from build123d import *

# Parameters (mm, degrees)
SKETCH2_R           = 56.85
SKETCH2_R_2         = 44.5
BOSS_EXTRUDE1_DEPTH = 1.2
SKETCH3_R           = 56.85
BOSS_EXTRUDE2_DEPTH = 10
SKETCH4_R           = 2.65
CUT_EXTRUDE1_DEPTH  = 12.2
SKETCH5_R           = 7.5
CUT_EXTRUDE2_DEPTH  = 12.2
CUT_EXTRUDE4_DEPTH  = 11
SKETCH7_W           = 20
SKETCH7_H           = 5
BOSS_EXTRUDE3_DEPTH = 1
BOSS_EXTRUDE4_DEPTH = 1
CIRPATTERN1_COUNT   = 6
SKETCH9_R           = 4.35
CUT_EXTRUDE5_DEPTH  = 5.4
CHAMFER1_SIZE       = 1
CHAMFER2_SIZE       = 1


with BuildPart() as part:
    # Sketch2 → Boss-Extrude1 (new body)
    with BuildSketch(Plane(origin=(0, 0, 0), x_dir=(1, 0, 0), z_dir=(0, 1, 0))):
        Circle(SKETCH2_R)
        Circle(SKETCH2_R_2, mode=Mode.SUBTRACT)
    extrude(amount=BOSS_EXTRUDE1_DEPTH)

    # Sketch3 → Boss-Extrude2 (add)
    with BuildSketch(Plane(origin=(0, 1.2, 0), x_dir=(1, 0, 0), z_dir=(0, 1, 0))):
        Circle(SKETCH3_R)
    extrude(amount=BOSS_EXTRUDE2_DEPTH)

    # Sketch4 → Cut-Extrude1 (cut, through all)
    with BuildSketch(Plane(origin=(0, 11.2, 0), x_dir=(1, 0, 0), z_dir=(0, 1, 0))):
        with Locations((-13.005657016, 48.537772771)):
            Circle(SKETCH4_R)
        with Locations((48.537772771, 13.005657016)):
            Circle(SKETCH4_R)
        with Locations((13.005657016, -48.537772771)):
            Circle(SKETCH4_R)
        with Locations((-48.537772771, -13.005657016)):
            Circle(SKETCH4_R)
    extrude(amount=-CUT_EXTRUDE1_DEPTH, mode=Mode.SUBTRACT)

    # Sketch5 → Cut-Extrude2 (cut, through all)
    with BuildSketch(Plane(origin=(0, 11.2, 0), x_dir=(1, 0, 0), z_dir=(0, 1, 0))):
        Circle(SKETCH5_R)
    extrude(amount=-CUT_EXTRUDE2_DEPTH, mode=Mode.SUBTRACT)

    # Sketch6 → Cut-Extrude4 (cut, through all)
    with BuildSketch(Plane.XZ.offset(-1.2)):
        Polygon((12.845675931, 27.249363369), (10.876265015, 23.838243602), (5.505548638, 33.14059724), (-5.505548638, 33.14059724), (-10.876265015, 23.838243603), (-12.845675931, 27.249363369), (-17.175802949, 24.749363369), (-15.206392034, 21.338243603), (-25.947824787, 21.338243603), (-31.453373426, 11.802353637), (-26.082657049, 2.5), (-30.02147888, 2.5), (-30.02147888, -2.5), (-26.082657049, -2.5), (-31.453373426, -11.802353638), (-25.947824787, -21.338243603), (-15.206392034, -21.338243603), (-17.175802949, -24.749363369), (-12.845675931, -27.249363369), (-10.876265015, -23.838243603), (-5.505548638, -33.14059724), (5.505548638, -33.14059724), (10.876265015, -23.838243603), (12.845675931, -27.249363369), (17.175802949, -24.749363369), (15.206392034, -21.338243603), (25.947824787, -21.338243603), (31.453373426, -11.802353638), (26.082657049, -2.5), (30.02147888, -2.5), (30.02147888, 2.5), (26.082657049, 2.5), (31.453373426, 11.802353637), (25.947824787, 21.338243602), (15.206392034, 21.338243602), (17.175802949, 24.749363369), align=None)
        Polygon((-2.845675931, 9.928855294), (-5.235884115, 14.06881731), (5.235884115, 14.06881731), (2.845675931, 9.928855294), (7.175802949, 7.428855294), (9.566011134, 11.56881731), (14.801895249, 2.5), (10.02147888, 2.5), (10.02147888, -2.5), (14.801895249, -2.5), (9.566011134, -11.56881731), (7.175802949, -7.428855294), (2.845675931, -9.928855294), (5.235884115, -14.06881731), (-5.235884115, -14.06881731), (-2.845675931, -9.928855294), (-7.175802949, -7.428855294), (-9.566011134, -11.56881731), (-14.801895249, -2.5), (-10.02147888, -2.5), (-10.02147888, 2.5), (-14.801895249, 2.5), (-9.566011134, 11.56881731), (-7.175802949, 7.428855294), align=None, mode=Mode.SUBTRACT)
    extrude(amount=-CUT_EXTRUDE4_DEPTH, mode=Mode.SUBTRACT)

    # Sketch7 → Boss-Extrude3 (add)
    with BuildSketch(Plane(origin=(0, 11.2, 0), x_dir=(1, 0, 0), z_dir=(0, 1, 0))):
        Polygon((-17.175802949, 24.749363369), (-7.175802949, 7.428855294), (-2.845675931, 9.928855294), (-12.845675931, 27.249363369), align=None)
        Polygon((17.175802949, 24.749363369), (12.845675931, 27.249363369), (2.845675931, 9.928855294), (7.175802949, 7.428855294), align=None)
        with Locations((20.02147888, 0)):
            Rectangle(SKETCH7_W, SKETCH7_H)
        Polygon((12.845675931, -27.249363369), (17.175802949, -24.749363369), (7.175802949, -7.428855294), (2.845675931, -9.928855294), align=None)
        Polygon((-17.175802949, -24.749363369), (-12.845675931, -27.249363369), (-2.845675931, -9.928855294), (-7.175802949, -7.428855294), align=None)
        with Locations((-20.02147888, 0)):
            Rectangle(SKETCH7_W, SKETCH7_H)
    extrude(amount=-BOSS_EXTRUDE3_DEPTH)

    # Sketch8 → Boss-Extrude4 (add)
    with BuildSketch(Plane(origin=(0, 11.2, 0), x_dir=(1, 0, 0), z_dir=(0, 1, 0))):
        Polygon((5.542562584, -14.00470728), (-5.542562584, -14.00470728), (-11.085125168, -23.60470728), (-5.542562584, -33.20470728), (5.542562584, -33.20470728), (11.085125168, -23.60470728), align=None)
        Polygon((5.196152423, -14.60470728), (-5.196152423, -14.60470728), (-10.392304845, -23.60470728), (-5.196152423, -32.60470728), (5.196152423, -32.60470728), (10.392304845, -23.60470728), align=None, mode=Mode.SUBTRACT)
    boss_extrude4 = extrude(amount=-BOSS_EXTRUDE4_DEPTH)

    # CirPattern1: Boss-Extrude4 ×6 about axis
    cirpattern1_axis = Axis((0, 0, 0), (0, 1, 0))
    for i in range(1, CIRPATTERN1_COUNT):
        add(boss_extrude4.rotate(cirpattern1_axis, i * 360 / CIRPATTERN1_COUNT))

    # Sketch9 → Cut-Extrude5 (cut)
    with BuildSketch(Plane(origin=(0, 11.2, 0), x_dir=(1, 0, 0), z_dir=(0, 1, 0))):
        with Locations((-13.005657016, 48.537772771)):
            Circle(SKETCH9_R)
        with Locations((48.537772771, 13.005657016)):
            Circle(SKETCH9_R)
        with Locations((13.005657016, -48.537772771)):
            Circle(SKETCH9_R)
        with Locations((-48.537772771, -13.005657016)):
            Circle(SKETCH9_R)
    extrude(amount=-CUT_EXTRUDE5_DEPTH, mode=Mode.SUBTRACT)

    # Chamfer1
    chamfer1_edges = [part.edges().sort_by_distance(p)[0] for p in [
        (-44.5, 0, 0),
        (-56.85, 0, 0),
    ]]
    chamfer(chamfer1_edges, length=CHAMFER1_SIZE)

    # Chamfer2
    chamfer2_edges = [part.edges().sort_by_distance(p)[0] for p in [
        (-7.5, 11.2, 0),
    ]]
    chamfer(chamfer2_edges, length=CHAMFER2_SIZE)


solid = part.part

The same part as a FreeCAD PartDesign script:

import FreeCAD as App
import Part
import Sketcher

V = App.Vector
Q = App.Units.Quantity


def edges_at(feature, points):
    """Names of the edges that pass closest to the given points."""
    edges = feature.Shape.Edges
    near = lambda p: min(range(len(edges)), key=lambda i: edges[i].distToShape(Part.Vertex(*p))[0])
    return sorted({f"Edge{near(p) + 1}" for p in points})

doc = App.newDocument("Part")
params = doc.addObject("Spreadsheet::Sheet", "Params")
for row, (alias, value) in enumerate([
    ("sketch1_diameter", "89 mm"),
    ("sketch1_diameter2", "113.7 mm"),
    ("pad1_length", "1.2 mm"),
    ("sketch2_diameter", "113.7 mm"),
    ("pad2_length", "10 mm"),
    ("sketch3_diameter", "5.3 mm"),
    ("sketch4_diameter", "15 mm"),
    ("sketch5_height", "5 mm"),
    ("sketch5_length", "5 mm"),
    ("sketch6_width", "20 mm"),
    ("sketch6_height", "5 mm"),
    ("sketch6_length", "20 mm"),
    ("sketch6_length2", "5 mm"),
    ("pad3_length", "1 mm"),
    ("pad4_length", "1 mm"),
    ("sketch8_diameter", "8.7 mm"),
    ("pocket4_length", "5.4 mm"),
    ("chamfer_size", "1 mm"),
    ("chamfer2_size", "1 mm"),
], start=1):
    params.set(f"A{row}", alias)
    params.set(f"B{row}", "=" + value)
    params.setAlias(f"B{row}", alias)

body = doc.addObject("PartDesign::Body", "Body")
body.AllowCompound = True

# Sketch on XZ plane
sketch1 = body.newObject("Sketcher::SketchObject", "Sketch")
sketch1.AttachmentSupport = (doc.getObject("XZ_Plane"), [""])
sketch1.MapMode = "FlatFace"
sketch1.addGeometry([
    Part.Circle(V(0, 0, 0), V(0, 0, 1), 56.85),
    Part.Circle(V(0, 0, 0), V(0, 0, 1), 44.5),
], False)
sketch1.addConstraint([
    Sketcher.Constraint("Coincident", 0, 3, -1, 1),
    Sketcher.Constraint("Coincident", 1, 3, -1, 1),
    Sketcher.Constraint("Diameter", 1, Q("89 mm")),
    Sketcher.Constraint("Diameter", 0, Q("113.7 mm")),
])
sketch1.setExpression("Constraints[2]", "Params.sketch1_diameter")
sketch1.setExpression("Constraints[3]", "Params.sketch1_diameter2")
pad1 = body.newObject("PartDesign::Pad", "Pad")
pad1.Profile = sketch1
pad1.setExpression("Length", "Params.pad1_length")
pad1.Reversed = True

# Sketch on XZ plane
sketch2 = body.newObject("Sketcher::SketchObject", "Sketch001")
sketch2.AttachmentSupport = (doc.getObject("XZ_Plane"), [""])
sketch2.MapMode = "FlatFace"
sketch2.AttachmentOffset = App.Placement(V(0, 0, -1.2), App.Rotation())
sketch2.addGeometry(Part.Circle(V(0, 0, 0), V(0, 0, 1), 56.85), False)
sketch2.addConstraint([
    Sketcher.Constraint("Coincident", 0, 3, -1, 1),
    Sketcher.Constraint("Diameter", 0, Q("113.7 mm")),
])
sketch2.setExpression("Constraints[1]", "Params.sketch2_diameter")
pad2 = body.newObject("PartDesign::Pad", "Pad001")
pad2.Profile = sketch2
pad2.setExpression("Length", "Params.pad2_length")
pad2.Reversed = True

# Sketch on XZ plane
sketch3 = body.newObject("Sketcher::SketchObject", "Sketch002")
sketch3.AttachmentSupport = (doc.getObject("XZ_Plane"), [""])
sketch3.MapMode = "FlatFace"
sketch3.AttachmentOffset = App.Placement(V(0, 0, -11.2), App.Rotation())
sketch3.addGeometry([
    Part.Circle(V(-13.005657, -48.537773, 0), V(0, 0, 1), 2.65),
    Part.Circle(V(48.537773, -13.005657, 0), V(0, 0, 1), 2.65),
    Part.Circle(V(13.005657, 48.537773, 0), V(0, 0, 1), 2.65),
    Part.Circle(V(-48.537773, 13.005657, 0), V(0, 0, 1), 2.65),
], False)
sketch3.addConstraint([
    Sketcher.Constraint("Equal", 0, 1),
    Sketcher.Constraint("Equal", 1, 2),
    Sketcher.Constraint("Equal", 2, 3),
    Sketcher.Constraint("Symmetric", 0, 3, 2, 3, -1, 1),
    Sketcher.Constraint("Symmetric", 1, 3, 3, 3, -1, 1),
    Sketcher.Constraint("Diameter", 0, Q("5.3 mm")),
    Sketcher.Constraint("DistanceX", 0, 3, 1, 3, Q("61.54343 mm")),
    Sketcher.Constraint("DistanceY", 1, 3, 2, 3, Q("61.54343 mm")),
    Sketcher.Constraint("DistanceX", 0, 3, -1, 1, Q("13.005657 mm")),
    Sketcher.Constraint("DistanceY", 0, 3, -1, 1, Q("48.537773 mm")),
])
sketch3.setExpression("Constraints[5]", "Params.sketch3_diameter")
pocket1 = body.newObject("PartDesign::Pocket", "Pocket")
pocket1.Profile = sketch3
pocket1.Type = "ThroughAll"
pocket1.Reversed = True

# Sketch on XZ plane
sketch4 = body.newObject("Sketcher::SketchObject", "Sketch003")
sketch4.AttachmentSupport = (doc.getObject("XZ_Plane"), [""])
sketch4.MapMode = "FlatFace"
sketch4.AttachmentOffset = App.Placement(V(0, 0, -11.2), App.Rotation())
sketch4.addGeometry(Part.Circle(V(0, 0, 0), V(0, 0, 1), 7.5), False)
sketch4.addConstraint([
    Sketcher.Constraint("Coincident", 0, 3, -1, 1),
    Sketcher.Constraint("Diameter", 0, Q("15 mm")),
])
sketch4.setExpression("Constraints[1]", "Params.sketch4_diameter")
pocket2 = body.newObject("PartDesign::Pocket", "Pocket001")
pocket2.Profile = sketch4
pocket2.Type = "ThroughAll"
pocket2.Reversed = True

# Sketch on XZ plane
sketch5 = body.newObject("Sketcher::SketchObject", "Sketch004")
sketch5.AttachmentSupport = (doc.getObject("XZ_Plane"), [""])
sketch5.MapMode = "FlatFace"
sketch5.AttachmentOffset = App.Placement(V(0, 0, -1.2), App.Rotation())
sketch5.addGeometry([
    Part.LineSegment(V(12.845676, 27.249363, 0), V(10.876265, 23.838244, 0)),  # 0
    Part.LineSegment(V(10.876265, 23.838244, 0), V(5.505549, 33.140597, 0)),  # 1
    Part.LineSegment(V(5.505549, 33.140597, 0), V(-5.505549, 33.140597, 0)),  # 2
    Part.LineSegment(V(-5.505549, 33.140597, 0), V(-10.876265, 23.838244, 0)),  # 3
    Part.LineSegment(V(-10.876265, 23.838244, 0), V(-12.845676, 27.249363, 0)),  # 4
    Part.LineSegment(V(-12.845676, 27.249363, 0), V(-17.175803, 24.749363, 0)),  # 5
    Part.LineSegment(V(-17.175803, 24.749363, 0), V(-15.206392, 21.338244, 0)),  # 6
    Part.LineSegment(V(-15.206392, 21.338244, 0), V(-25.947825, 21.338244, 0)),  # 7
    Part.LineSegment(V(-25.947825, 21.338244, 0), V(-31.453373, 11.802354, 0)),  # 8
    Part.LineSegment(V(-31.453373, 11.802354, 0), V(-26.082657, 2.5, 0)),  # 9
    Part.LineSegment(V(-26.082657, 2.5, 0), V(-30.021479, 2.5, 0)),  # 10
    Part.LineSegment(V(-30.021479, 2.5, 0), V(-30.021479, -2.5, 0)),  # 11
    Part.LineSegment(V(-30.021479, -2.5, 0), V(-26.082657, -2.5, 0)),  # 12
    Part.LineSegment(V(-26.082657, -2.5, 0), V(-31.453373, -11.802354, 0)),  # 13
    Part.LineSegment(V(-31.453373, -11.802354, 0), V(-25.947825, -21.338244, 0)),  # 14
    Part.LineSegment(V(-25.947825, -21.338244, 0), V(-15.206392, -21.338244, 0)),  # 15
    Part.LineSegment(V(-15.206392, -21.338244, 0), V(-17.175803, -24.749363, 0)),  # 16
    Part.LineSegment(V(-17.175803, -24.749363, 0), V(-12.845676, -27.249363, 0)),  # 17
    Part.LineSegment(V(-12.845676, -27.249363, 0), V(-10.876265, -23.838244, 0)),  # 18
    Part.LineSegment(V(-10.876265, -23.838244, 0), V(-5.505549, -33.140597, 0)),  # 19
    Part.LineSegment(V(-5.505549, -33.140597, 0), V(5.505549, -33.140597, 0)),  # 20
    Part.LineSegment(V(5.505549, -33.140597, 0), V(10.876265, -23.838244, 0)),  # 21
    Part.LineSegment(V(10.876265, -23.838244, 0), V(12.845676, -27.249363, 0)),  # 22
    Part.LineSegment(V(12.845676, -27.249363, 0), V(17.175803, -24.749363, 0)),  # 23
    Part.LineSegment(V(17.175803, -24.749363, 0), V(15.206392, -21.338244, 0)),  # 24
    Part.LineSegment(V(15.206392, -21.338244, 0), V(25.947825, -21.338244, 0)),  # 25
    Part.LineSegment(V(25.947825, -21.338244, 0), V(31.453373, -11.802354, 0)),  # 26
    Part.LineSegment(V(31.453373, -11.802354, 0), V(26.082657, -2.5, 0)),  # 27
    Part.LineSegment(V(26.082657, -2.5, 0), V(30.021479, -2.5, 0)),  # 28
    Part.LineSegment(V(30.021479, -2.5, 0), V(30.021479, 2.5, 0)),  # 29
    Part.LineSegment(V(30.021479, 2.5, 0), V(26.082657, 2.5, 0)),  # 30
    Part.LineSegment(V(26.082657, 2.5, 0), V(31.453373, 11.802354, 0)),  # 31
    Part.LineSegment(V(31.453373, 11.802354, 0), V(25.947825, 21.338244, 0)),  # 32
    Part.LineSegment(V(25.947825, 21.338244, 0), V(15.206392, 21.338244, 0)),  # 33
    Part.LineSegment(V(15.206392, 21.338244, 0), V(17.175803, 24.749363, 0)),  # 34
    Part.LineSegment(V(17.175803, 24.749363, 0), V(12.845676, 27.249363, 0)),  # 35
    Part.LineSegment(V(-7.175803, 7.428855, 0), V(-2.845676, 9.928855, 0)),  # 36
    Part.LineSegment(V(-2.845676, 9.928855, 0), V(-5.235884, 14.068817, 0)),  # 37
    Part.LineSegment(V(-5.235884, 14.068817, 0), V(5.235884, 14.068817, 0)),  # 38
    Part.LineSegment(V(5.235884, 14.068817, 0), V(2.845676, 9.928855, 0)),  # 39
    Part.LineSegment(V(2.845676, 9.928855, 0), V(7.175803, 7.428855, 0)),  # 40
    Part.LineSegment(V(7.175803, 7.428855, 0), V(9.566011, 11.568817, 0)),  # 41
    Part.LineSegment(V(9.566011, 11.568817, 0), V(14.801895, 2.5, 0)),  # 42
    Part.LineSegment(V(14.801895, 2.5, 0), V(10.021479, 2.5, 0)),  # 43
    Part.LineSegment(V(10.021479, 2.5, 0), V(10.021479, -2.5, 0)),  # 44
    Part.LineSegment(V(10.021479, -2.5, 0), V(14.801895, -2.5, 0)),  # 45
    Part.LineSegment(V(14.801895, -2.5, 0), V(9.566011, -11.568817, 0)),  # 46
    Part.LineSegment(V(9.566011, -11.568817, 0), V(7.175803, -7.428855, 0)),  # 47
    Part.LineSegment(V(7.175803, -7.428855, 0), V(2.845676, -9.928855, 0)),  # 48
    Part.LineSegment(V(2.845676, -9.928855, 0), V(5.235884, -14.068817, 0)),  # 49
    Part.LineSegment(V(5.235884, -14.068817, 0), V(-5.235884, -14.068817, 0)),  # 50
    Part.LineSegment(V(-5.235884, -14.068817, 0), V(-2.845676, -9.928855, 0)),  # 51
    Part.LineSegment(V(-2.845676, -9.928855, 0), V(-7.175803, -7.428855, 0)),  # 52
    Part.LineSegment(V(-7.175803, -7.428855, 0), V(-9.566011, -11.568817, 0)),  # 53
    Part.LineSegment(V(-9.566011, -11.568817, 0), V(-14.801895, -2.5, 0)),  # 54
    Part.LineSegment(V(-14.801895, -2.5, 0), V(-10.021479, -2.5, 0)),  # 55
    Part.LineSegment(V(-10.021479, -2.5, 0), V(-10.021479, 2.5, 0)),  # 56
    Part.LineSegment(V(-10.021479, 2.5, 0), V(-14.801895, 2.5, 0)),  # 57
    Part.LineSegment(V(-14.801895, 2.5, 0), V(-9.566011, 11.568817, 0)),  # 58
    Part.LineSegment(V(-9.566011, 11.568817, 0), V(-7.175803, 7.428855, 0)),  # 59
], False)
sketch5.addConstraint([
    Sketcher.Constraint("Coincident", 0, 2, 1, 1),
    Sketcher.Constraint("Coincident", 1, 2, 2, 1),
    Sketcher.Constraint("Coincident", 2, 2, 3, 1),
    Sketcher.Constraint("Coincident", 3, 2, 4, 1),
    Sketcher.Constraint("Coincident", 4, 2, 5, 1),
    Sketcher.Constraint("Coincident", 5, 2, 6, 1),
    Sketcher.Constraint("Coincident", 6, 2, 7, 1),
    Sketcher.Constraint("Coincident", 7, 2, 8, 1),
    Sketcher.Constraint("Coincident", 8, 2, 9, 1),
    Sketcher.Constraint("Coincident", 9, 2, 10, 1),
    Sketcher.Constraint("Coincident", 10, 2, 11, 1),
    Sketcher.Constraint("Coincident", 11, 2, 12, 1),
    Sketcher.Constraint("Coincident", 12, 2, 13, 1),
    Sketcher.Constraint("Coincident", 13, 2, 14, 1),
    Sketcher.Constraint("Coincident", 14, 2, 15, 1),
    Sketcher.Constraint("Coincident", 15, 2, 16, 1),
    Sketcher.Constraint("Coincident", 16, 2, 17, 1),
    Sketcher.Constraint("Coincident", 17, 2, 18, 1),
    Sketcher.Constraint("Coincident", 18, 2, 19, 1),
    Sketcher.Constraint("Coincident", 19, 2, 20, 1),
    Sketcher.Constraint("Coincident", 20, 2, 21, 1),
    Sketcher.Constraint("Coincident", 21, 2, 22, 1),
    Sketcher.Constraint("Coincident", 22, 2, 23, 1),
    Sketcher.Constraint("Coincident", 23, 2, 24, 1),
    Sketcher.Constraint("Coincident", 24, 2, 25, 1),
    Sketcher.Constraint("Coincident", 25, 2, 26, 1),
    Sketcher.Constraint("Coincident", 26, 2, 27, 1),
    Sketcher.Constraint("Coincident", 27, 2, 28, 1),
    Sketcher.Constraint("Coincident", 28, 2, 29, 1),
    Sketcher.Constraint("Coincident", 29, 2, 30, 1),
    Sketcher.Constraint("Coincident", 30, 2, 31, 1),
    Sketcher.Constraint("Coincident", 31, 2, 32, 1),
    Sketcher.Constraint("Coincident", 32, 2, 33, 1),
    Sketcher.Constraint("Coincident", 33, 2, 34, 1),
    Sketcher.Constraint("Coincident", 34, 2, 35, 1),
    Sketcher.Constraint("Coincident", 35, 2, 0, 1),
    Sketcher.Constraint("Coincident", 36, 2, 37, 1),
    Sketcher.Constraint("Coincident", 37, 2, 38, 1),
    Sketcher.Constraint("Coincident", 38, 2, 39, 1),
    Sketcher.Constraint("Coincident", 39, 2, 40, 1),
    Sketcher.Constraint("Coincident", 40, 2, 41, 1),
    Sketcher.Constraint("Coincident", 41, 2, 42, 1),
    Sketcher.Constraint("Coincident", 42, 2, 43, 1),
    Sketcher.Constraint("Coincident", 43, 2, 44, 1),
    Sketcher.Constraint("Coincident", 44, 2, 45, 1),
    Sketcher.Constraint("Coincident", 45, 2, 46, 1),
    Sketcher.Constraint("Coincident", 46, 2, 47, 1),
    Sketcher.Constraint("Coincident", 47, 2, 48, 1),
    Sketcher.Constraint("Coincident", 48, 2, 49, 1),
    Sketcher.Constraint("Coincident", 49, 2, 50, 1),
    Sketcher.Constraint("Coincident", 50, 2, 51, 1),
    Sketcher.Constraint("Coincident", 51, 2, 52, 1),
    Sketcher.Constraint("Coincident", 52, 2, 53, 1),
    Sketcher.Constraint("Coincident", 53, 2, 54, 1),
    Sketcher.Constraint("Coincident", 54, 2, 55, 1),
    Sketcher.Constraint("Coincident", 55, 2, 56, 1),
    Sketcher.Constraint("Coincident", 56, 2, 57, 1),
    Sketcher.Constraint("Coincident", 57, 2, 58, 1),
    Sketcher.Constraint("Coincident", 58, 2, 59, 1),
    Sketcher.Constraint("Coincident", 59, 2, 36, 1),
    Sketcher.Constraint("Horizontal", 2),
    Sketcher.Constraint("Horizontal", 7),
    Sketcher.Constraint("Horizontal", 10),
    Sketcher.Constraint("Vertical", 11),
    Sketcher.Constraint("Horizontal", 12),
    Sketcher.Constraint("Horizontal", 15),
    Sketcher.Constraint("Horizontal", 20),
    Sketcher.Constraint("Horizontal", 25),
    Sketcher.Constraint("Horizontal", 28),
    Sketcher.Constraint("Vertical", 29),
    Sketcher.Constraint("Horizontal", 30),
    Sketcher.Constraint("Horizontal", 33),
    Sketcher.Constraint("Horizontal", 38),
    Sketcher.Constraint("Horizontal", 43),
    Sketcher.Constraint("Vertical", 44),
    Sketcher.Constraint("Horizontal", 45),
    Sketcher.Constraint("Horizontal", 50),
    Sketcher.Constraint("Horizontal", 55),
    Sketcher.Constraint("Vertical", 56),
    Sketcher.Constraint("Horizontal", 57),
    Sketcher.Constraint("Symmetric", 0, 2, 18, 2, -1, 1),
    Sketcher.Constraint("Symmetric", 1, 2, 19, 2, -1, 1),
    Sketcher.Constraint("Symmetric", 3, 2, 21, 2, -1, 1),
    Sketcher.Constraint("Symmetric", 4, 2, 22, 2, -1, 1),
    Sketcher.Constraint("Symmetric", 5, 2, 23, 2, -1, 1),
    Sketcher.Constraint("Symmetric", 6, 2, 24, 2, -1, 1),
    Sketcher.Constraint("Symmetric", 8, 2, 26, 2, -1, 1),
    Sketcher.Constraint("Symmetric", 9, 2, 27, 2, -1, 1),
    Sketcher.Constraint("Symmetric", 11, 2, 29, 2, -1, 1),
    Sketcher.Constraint("Symmetric", 13, 2, 31, 2, -1, 1),
    Sketcher.Constraint("Symmetric", 14, 2, 32, 2, -1, 1),
    Sketcher.Constraint("Symmetric", 16, 2, 34, 2, -1, 1),
    Sketcher.Constraint("Symmetric", 17, 2, 35, 2, -1, 1),
    Sketcher.Constraint("Symmetric", 36, 2, 48, 2, -1, 1),
    Sketcher.Constraint("Symmetric", 37, 2, 49, 2, -1, 1),
    Sketcher.Constraint("Symmetric", 39, 2, 51, 2, -1, 1),
    Sketcher.Constraint("Symmetric", 40, 2, 52, 2, -1, 1),
    Sketcher.Constraint("Symmetric", 41, 2, 53, 2, -1, 1),
    Sketcher.Constraint("Symmetric", 42, 2, 54, 2, -1, 1),
    Sketcher.Constraint("Symmetric", 44, 2, 56, 2, -1, 1),
    Sketcher.Constraint("Symmetric", 46, 2, 58, 2, -1, 1),
    Sketcher.Constraint("Symmetric", 47, 2, 59, 2, -1, 1),
    Sketcher.Constraint("Symmetric", 0, 2, 3, 2, -2),
    Sketcher.Constraint("Symmetric", 17, 2, 22, 2, -2),
    Sketcher.Constraint("Symmetric", 16, 2, 23, 2, -2),
    Sketcher.Constraint("Symmetric", 15, 2, 24, 2, -2),
    Sketcher.Constraint("Symmetric", 13, 2, 26, 2, -2),
    Sketcher.Constraint("Symmetric", 12, 2, 27, 2, -2),
    Sketcher.Constraint("Symmetric", 36, 2, 39, 2, -2),
    Sketcher.Constraint("Symmetric", 47, 2, 52, 2, -2),
    Sketcher.Constraint("Symmetric", 46, 2, 53, 2, -2),
    Sketcher.Constraint("Symmetric", 45, 2, 54, 2, -2),
    Sketcher.Constraint("Parallel", 0, 3),
    Sketcher.Constraint("Parallel", 1, 4),
    Sketcher.Constraint("Perpendicular", 4, 5),
    Sketcher.Constraint("Perpendicular", 5, 6),
    Sketcher.Constraint("Parallel", 3, 8),
    Sketcher.Constraint("Parallel", 6, 9),
    Sketcher.Constraint("Parallel", 9, 14),
    Sketcher.Constraint("Parallel", 18, 21),
    Sketcher.Constraint("Parallel", 21, 26),
    Sketcher.Constraint("Parallel", 26, 31),
    Sketcher.Constraint("Parallel", 31, 34),
    Sketcher.Constraint("Perpendicular", 32, 36),
    Sketcher.Constraint("Perpendicular", 36, 37),
    Sketcher.Constraint("Perpendicular", 35, 39),
    Sketcher.Constraint("Perpendicular", 40, 41),
    Sketcher.Constraint("Parallel", 37, 42),
    Sketcher.Constraint("Parallel", 46, 51),
    Sketcher.Constraint("Parallel", 53, 58),
    Sketcher.Constraint("Horizontal", 30, 2, 42, 2),
    Sketcher.Constraint("Equal", 4, 6),
    Sketcher.Constraint("Equal", 3, 9),
    Sketcher.Constraint("Equal", 35, 36),
    Sketcher.Constraint("Equal", 39, 41),
    Sketcher.Constraint("DistanceY", 11, 2, 11, 1, Q("5 mm")),
    Sketcher.Constraint("Angle", 0, Q("-120 deg")),
    Sketcher.Constraint("Distance", 5, Q("5 mm")),
    Sketcher.Constraint("DistanceX", 4, 2, 36, 2, Q("10 mm")),
    Sketcher.Constraint("DistanceX", 10, 2, 10, 1, Q("3.938822 mm")),
    Sketcher.Constraint("DistanceX", 38, 1, 38, 2, Q("10.471768 mm")),
    Sketcher.Constraint("Distance", 0, Q("3.938822 mm")),
    Sketcher.Constraint("Distance", 42, Q("10.471768 mm")),
    Sketcher.Constraint("DistanceX", 2, 2, 2, 1, Q("11.011097 mm")),
    Sketcher.Constraint("DistanceX", 7, 2, 7, 1, Q("10.741433 mm")),
    Sketcher.Constraint("DistanceX", 43, 2, 43, 1, Q("4.780416 mm")),
    Sketcher.Constraint("DistanceX", 10, 2, -1, 1, Q("30.021479 mm")),
    Sketcher.Constraint("DistanceX", 3, 2, 0, 2, Q("21.75253 mm")),
])
sketch5.setExpression("Constraints[135]", "Params.sketch5_height")
sketch5.setExpression("Constraints[137]", "Params.sketch5_length")
pocket3 = body.newObject("PartDesign::Pocket", "Pocket002")
pocket3.Profile = sketch5
pocket3.Type = "ThroughAll"

# Sketch on XZ plane
sketch6 = body.newObject("Sketcher::SketchObject", "Sketch005")
sketch6.AttachmentSupport = (doc.getObject("XZ_Plane"), [""])
sketch6.MapMode = "FlatFace"
sketch6.AttachmentOffset = App.Placement(V(0, 0, -11.2), App.Rotation())
sketch6.addGeometry([
    Part.LineSegment(V(-17.175803, -24.749363, 0), V(-7.175803, -7.428855, 0)),  # 0
    Part.LineSegment(V(-7.175803, -7.428855, 0), V(-2.845676, -9.928855, 0)),  # 1
    Part.LineSegment(V(-2.845676, -9.928855, 0), V(-12.845676, -27.249363, 0)),  # 2
    Part.LineSegment(V(-12.845676, -27.249363, 0), V(-17.175803, -24.749363, 0)),  # 3
    Part.LineSegment(V(17.175803, -24.749363, 0), V(12.845676, -27.249363, 0)),  # 4
    Part.LineSegment(V(12.845676, -27.249363, 0), V(2.845676, -9.928855, 0)),  # 5
    Part.LineSegment(V(2.845676, -9.928855, 0), V(7.175803, -7.428855, 0)),  # 6
    Part.LineSegment(V(7.175803, -7.428855, 0), V(17.175803, -24.749363, 0)),  # 7
    Part.LineSegment(V(10.021479, -2.5, 0), V(10.021479, 2.5, 0)),  # 8
    Part.LineSegment(V(10.021479, 2.5, 0), V(30.021479, 2.5, 0)),  # 9
    Part.LineSegment(V(30.021479, 2.5, 0), V(30.021479, -2.5, 0)),  # 10
    Part.LineSegment(V(30.021479, -2.5, 0), V(10.021479, -2.5, 0)),  # 11
    Part.LineSegment(V(12.845676, 27.249363, 0), V(17.175803, 24.749363, 0)),  # 12
    Part.LineSegment(V(17.175803, 24.749363, 0), V(7.175803, 7.428855, 0)),  # 13
    Part.LineSegment(V(7.175803, 7.428855, 0), V(2.845676, 9.928855, 0)),  # 14
    Part.LineSegment(V(2.845676, 9.928855, 0), V(12.845676, 27.249363, 0)),  # 15
    Part.LineSegment(V(-17.175803, 24.749363, 0), V(-12.845676, 27.249363, 0)),  # 16
    Part.LineSegment(V(-12.845676, 27.249363, 0), V(-2.845676, 9.928855, 0)),  # 17
    Part.LineSegment(V(-2.845676, 9.928855, 0), V(-7.175803, 7.428855, 0)),  # 18
    Part.LineSegment(V(-7.175803, 7.428855, 0), V(-17.175803, 24.749363, 0)),  # 19
    Part.LineSegment(V(-30.021479, -2.5, 0), V(-30.021479, 2.5, 0)),  # 20
    Part.LineSegment(V(-30.021479, 2.5, 0), V(-10.021479, 2.5, 0)),  # 21
    Part.LineSegment(V(-10.021479, 2.5, 0), V(-10.021479, -2.5, 0)),  # 22
    Part.LineSegment(V(-10.021479, -2.5, 0), V(-30.021479, -2.5, 0)),  # 23
], False)
sketch6.addConstraint([
    Sketcher.Constraint("Coincident", 0, 2, 1, 1),
    Sketcher.Constraint("Coincident", 1, 2, 2, 1),
    Sketcher.Constraint("Coincident", 2, 2, 3, 1),
    Sketcher.Constraint("Coincident", 3, 2, 0, 1),
    Sketcher.Constraint("Coincident", 4, 2, 5, 1),
    Sketcher.Constraint("Coincident", 5, 2, 6, 1),
    Sketcher.Constraint("Coincident", 6, 2, 7, 1),
    Sketcher.Constraint("Coincident", 7, 2, 4, 1),
    Sketcher.Constraint("Coincident", 8, 2, 9, 1),
    Sketcher.Constraint("Coincident", 9, 2, 10, 1),
    Sketcher.Constraint("Coincident", 10, 2, 11, 1),
    Sketcher.Constraint("Coincident", 11, 2, 8, 1),
    Sketcher.Constraint("Coincident", 12, 2, 13, 1),
    Sketcher.Constraint("Coincident", 13, 2, 14, 1),
    Sketcher.Constraint("Coincident", 14, 2, 15, 1),
    Sketcher.Constraint("Coincident", 15, 2, 12, 1),
    Sketcher.Constraint("Coincident", 16, 2, 17, 1),
    Sketcher.Constraint("Coincident", 17, 2, 18, 1),
    Sketcher.Constraint("Coincident", 18, 2, 19, 1),
    Sketcher.Constraint("Coincident", 19, 2, 16, 1),
    Sketcher.Constraint("Coincident", 20, 2, 21, 1),
    Sketcher.Constraint("Coincident", 21, 2, 22, 1),
    Sketcher.Constraint("Coincident", 22, 2, 23, 1),
    Sketcher.Constraint("Coincident", 23, 2, 20, 1),
    Sketcher.Constraint("Vertical", 8),
    Sketcher.Constraint("Horizontal", 9),
    Sketcher.Constraint("Vertical", 10),
    Sketcher.Constraint("Horizontal", 11),
    Sketcher.Constraint("Vertical", 20),
    Sketcher.Constraint("Horizontal", 21),
    Sketcher.Constraint("Vertical", 22),
    Sketcher.Constraint("Horizontal", 23),
    Sketcher.Constraint("Symmetric", 3, 2, 12, 2, -1, 1),
    Sketcher.Constraint("Symmetric", 0, 2, 13, 2, -1, 1),
    Sketcher.Constraint("Symmetric", 1, 2, 14, 2, -1, 1),
    Sketcher.Constraint("Symmetric", 2, 2, 15, 2, -1, 1),
    Sketcher.Constraint("Symmetric", 4, 2, 16, 2, -1, 1),
    Sketcher.Constraint("Symmetric", 5, 2, 17, 2, -1, 1),
    Sketcher.Constraint("Symmetric", 6, 2, 18, 2, -1, 1),
    Sketcher.Constraint("Symmetric", 7, 2, 19, 2, -1, 1),
    Sketcher.Constraint("Symmetric", 10, 2, 20, 2, -1, 1),
    Sketcher.Constraint("Symmetric", 8, 2, 22, 2, -1, 1),
    Sketcher.Constraint("Symmetric", 2, 2, 4, 2, -2),
    Sketcher.Constraint("Symmetric", 1, 2, 5, 2, -2),
    Sketcher.Constraint("Symmetric", 0, 2, 6, 2, -2),
    Sketcher.Constraint("Symmetric", 3, 2, 7, 2, -2),
    Sketcher.Constraint("Perpendicular", 0, 1),
    Sketcher.Constraint("Perpendicular", 1, 2),
    Sketcher.Constraint("Perpendicular", 2, 3),
    Sketcher.Constraint("Horizontal", 9, 2, 20, 2),
    Sketcher.Constraint("DistanceX", 9, 1, 9, 2, Q("20 mm")),
    Sketcher.Constraint("DistanceY", 8, 1, 8, 2, Q("5 mm")),
    Sketcher.Constraint("Angle", 0, Q("60 deg")),
    Sketcher.Constraint("Distance", 0, Q("20 mm")),
    Sketcher.Constraint("Distance", 1, Q("5 mm")),
    Sketcher.Constraint("DistanceX", -1, 1, 8, 2, Q("10.021479 mm")),
    Sketcher.Constraint("DistanceX", 1, 2, 4, 2, Q("15.691352 mm")),
    Sketcher.Constraint("DistanceY", 6, 2, 12, 2, Q("32.178219 mm")),
])
sketch6.setExpression("Constraints[50]", "Params.sketch6_width")
sketch6.setExpression("Constraints[51]", "Params.sketch6_height")
sketch6.setExpression("Constraints[53]", "Params.sketch6_length")
sketch6.setExpression("Constraints[54]", "Params.sketch6_length2")
pad3 = body.newObject("PartDesign::Pad", "Pad002")
pad3.Profile = sketch6
pad3.setExpression("Length", "Params.pad3_length")

# Sketch on XZ plane
sketch7 = body.newObject("Sketcher::SketchObject", "Sketch006")
sketch7.AttachmentSupport = (doc.getObject("XZ_Plane"), [""])
sketch7.MapMode = "FlatFace"
sketch7.AttachmentOffset = App.Placement(V(0, 0, -11.2), App.Rotation())
sketch7.addGeometry([
    Part.LineSegment(V(5.542563, 14.004707, 0), V(-5.542563, 14.004707, 0)),  # 0
    Part.LineSegment(V(-5.542563, 14.004707, 0), V(-11.085125, 23.604707, 0)),  # 1
    Part.LineSegment(V(-11.085125, 23.604707, 0), V(-5.542563, 33.204707, 0)),  # 2
    Part.LineSegment(V(-5.542563, 33.204707, 0), V(5.542563, 33.204707, 0)),  # 3
    Part.LineSegment(V(5.542563, 33.204707, 0), V(11.085125, 23.604707, 0)),  # 4
    Part.LineSegment(V(11.085125, 23.604707, 0), V(5.542563, 14.004707, 0)),  # 5
    Part.LineSegment(V(-5.196152, 14.604707, 0), V(5.196152, 14.604707, 0)),  # 6
    Part.LineSegment(V(5.196152, 14.604707, 0), V(10.392305, 23.604707, 0)),  # 7
    Part.LineSegment(V(10.392305, 23.604707, 0), V(5.196152, 32.604707, 0)),  # 8
    Part.LineSegment(V(5.196152, 32.604707, 0), V(-5.196152, 32.604707, 0)),  # 9
    Part.LineSegment(V(-5.196152, 32.604707, 0), V(-10.392305, 23.604707, 0)),  # 10
    Part.LineSegment(V(-10.392305, 23.604707, 0), V(-5.196152, 14.604707, 0)),  # 11
], False)
sketch7.addConstraint([
    Sketcher.Constraint("Coincident", 0, 2, 1, 1),
    Sketcher.Constraint("Coincident", 1, 2, 2, 1),
    Sketcher.Constraint("Coincident", 2, 2, 3, 1),
    Sketcher.Constraint("Coincident", 3, 2, 4, 1),
    Sketcher.Constraint("Coincident", 4, 2, 5, 1),
    Sketcher.Constraint("Coincident", 5, 2, 0, 1),
    Sketcher.Constraint("Coincident", 6, 2, 7, 1),
    Sketcher.Constraint("Coincident", 7, 2, 8, 1),
    Sketcher.Constraint("Coincident", 8, 2, 9, 1),
    Sketcher.Constraint("Coincident", 9, 2, 10, 1),
    Sketcher.Constraint("Coincident", 10, 2, 11, 1),
    Sketcher.Constraint("Coincident", 11, 2, 6, 1),
    Sketcher.Constraint("Horizontal", 0),
    Sketcher.Constraint("Horizontal", 3),
    Sketcher.Constraint("Horizontal", 6),
    Sketcher.Constraint("Horizontal", 9),
    Sketcher.Constraint("Symmetric", 1, 2, 4, 2, -2),
    Sketcher.Constraint("Symmetric", 7, 2, 10, 2, -2),
    Sketcher.Constraint("Parallel", 1, 4),
    Sketcher.Constraint("Parallel", 2, 5),
    Sketcher.Constraint("Parallel", 5, 7),
    Sketcher.Constraint("Parallel", 4, 8),
    Sketcher.Constraint("Parallel", 7, 10),
    Sketcher.Constraint("Parallel", 8, 11),
    Sketcher.Constraint("Horizontal", 4, 2, 7, 2),
    Sketcher.Constraint("Vertical", 0, 2, 2, 2),
    Sketcher.Constraint("Vertical", 3, 2, 5, 2),
    Sketcher.Constraint("Vertical", 6, 2, 8, 2),
    Sketcher.Constraint("Angle", 1, Q("120 deg")),
    Sketcher.Constraint("DistanceY", 6, 2, 4, 2, Q("9 mm")),
    Sketcher.Constraint("DistanceY", 0, 2, 1, 2, Q("9.6 mm")),
    Sketcher.Constraint("DistanceX", 0, 2, 0, 1, Q("11.085125 mm")),
    Sketcher.Constraint("DistanceX", 6, 1, 6, 2, Q("10.392305 mm")),
    Sketcher.Constraint("DistanceY", -1, 1, 0, 2, Q("14.004707 mm")),
])
pad4 = body.newObject("PartDesign::Pad", "Pad003")
pad4.Profile = sketch7
pad4.setExpression("Length", "Params.pad4_length")
doc.recompute()

polarpattern = body.newObject("PartDesign::PolarPattern", "PolarPattern")
polarpattern.Originals = [pad4]
polarpattern.Axis = (doc.getObject("Y_Axis"), [""])
polarpattern.Angle = 360
polarpattern.Occurrences = 6
body.Tip = polarpattern

# Sketch on XZ plane
sketch8 = body.newObject("Sketcher::SketchObject", "Sketch007")
sketch8.AttachmentSupport = (doc.getObject("XZ_Plane"), [""])
sketch8.MapMode = "FlatFace"
sketch8.AttachmentOffset = App.Placement(V(0, 0, -11.2), App.Rotation())
sketch8.addGeometry([
    Part.Circle(V(-13.005657, -48.537773, 0), V(0, 0, 1), 4.35),
    Part.Circle(V(48.537773, -13.005657, 0), V(0, 0, 1), 4.35),
    Part.Circle(V(13.005657, 48.537773, 0), V(0, 0, 1), 4.35),
    Part.Circle(V(-48.537773, 13.005657, 0), V(0, 0, 1), 4.35),
], False)
sketch8.addConstraint([
    Sketcher.Constraint("Equal", 0, 1),
    Sketcher.Constraint("Equal", 1, 2),
    Sketcher.Constraint("Equal", 2, 3),
    Sketcher.Constraint("Symmetric", 0, 3, 2, 3, -1, 1),
    Sketcher.Constraint("Symmetric", 1, 3, 3, 3, -1, 1),
    Sketcher.Constraint("Diameter", 0, Q("8.7 mm")),
    Sketcher.Constraint("DistanceX", 0, 3, 1, 3, Q("61.54343 mm")),
    Sketcher.Constraint("DistanceY", 1, 3, 2, 3, Q("61.54343 mm")),
    Sketcher.Constraint("DistanceX", 0, 3, -1, 1, Q("13.005657 mm")),
    Sketcher.Constraint("DistanceY", 0, 3, -1, 1, Q("48.537773 mm")),
])
sketch8.setExpression("Constraints[5]", "Params.sketch8_diameter")
pocket4 = body.newObject("PartDesign::Pocket", "Pocket003")
pocket4.Profile = sketch8
pocket4.setExpression("Length", "Params.pocket4_length")
pocket4.Reversed = True
doc.recompute()

chamfer = body.newObject("PartDesign::Chamfer", "Chamfer")
chamfer.Base = (pocket4, edges_at(pocket4, [(-44.5, 0, 0), (-56.85, 0, 0)]))
chamfer.setExpression("Size", "Params.chamfer_size")
doc.recompute()

chamfer2 = body.newObject("PartDesign::Chamfer", "Chamfer001")
chamfer2.Base = (chamfer, edges_at(chamfer, [(-7.5, 11.2, 0)]))
chamfer2.setExpression("Size", "Params.chamfer2_size")

doc.recompute()
